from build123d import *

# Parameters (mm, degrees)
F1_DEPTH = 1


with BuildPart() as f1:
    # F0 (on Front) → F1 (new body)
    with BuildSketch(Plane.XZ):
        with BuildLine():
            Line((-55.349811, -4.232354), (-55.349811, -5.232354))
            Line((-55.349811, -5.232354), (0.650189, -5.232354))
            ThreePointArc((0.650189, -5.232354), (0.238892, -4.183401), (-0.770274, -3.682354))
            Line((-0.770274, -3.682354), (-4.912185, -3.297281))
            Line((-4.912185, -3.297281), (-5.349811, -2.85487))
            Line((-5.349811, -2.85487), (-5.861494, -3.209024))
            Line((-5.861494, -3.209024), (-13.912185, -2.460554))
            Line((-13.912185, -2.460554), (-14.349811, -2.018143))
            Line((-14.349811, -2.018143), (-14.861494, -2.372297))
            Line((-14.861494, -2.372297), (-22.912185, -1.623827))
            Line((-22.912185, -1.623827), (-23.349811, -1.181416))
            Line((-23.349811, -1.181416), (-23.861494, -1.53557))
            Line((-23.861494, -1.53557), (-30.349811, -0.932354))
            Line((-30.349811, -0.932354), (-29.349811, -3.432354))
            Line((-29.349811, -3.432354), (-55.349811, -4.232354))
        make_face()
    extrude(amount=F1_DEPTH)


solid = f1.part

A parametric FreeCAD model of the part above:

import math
import FreeCAD as App
import Part
import Sketcher
from FreeCAD import Vector

doc = App.newDocument("Part")
params = doc.addObject("Spreadsheet::Sheet", "Params")
for row, (alias, value) in enumerate([
    ("sketch1_width", "56 mm"),
    ("sketch1_height", "1 mm"),
    ("pad1_length", "1 mm"),
], start=1):
    params.set(f"A{row}", alias)
    params.set(f"B{row}", "=" + value)
    params.setAlias(f"B{row}", alias)

body = doc.addObject("PartDesign::Body", "Body")

sketch1 = doc.addObject("Sketcher::SketchObject", "Sketch")
body.addObject(sketch1)
sketch1.AttachmentSupport = (doc.XZ_Plane, [""])
sketch1.MapMode = "FlatFace"
sketch1.addGeometry(Part.LineSegment(Vector(-55.349811, -4.232354, 0), Vector(-55.349811, -5.232354, 0)), False)
sketch1.addGeometry(Part.LineSegment(Vector(-55.349811, -5.232354, 0), Vector(0.650189, -5.232354, 0)), False)
sketch1.addGeometry(Part.ArcOfCircle(Part.Circle(Vector(-0.915183, -5.241028, 0), Vector(0, 0, 1), 1.565396), math.radians(0.317493), math.radians(84.688522)), False)
sketch1.addGeometry(Part.LineSegment(Vector(-0.770274, -3.682354, 0), Vector(-4.912185, -3.297281, 0)), False)
sketch1.addGeometry(Part.LineSegment(Vector(-4.912185, -3.297281, 0), Vector(-5.349811, -2.85487, 0)), False)
sketch1.addGeometry(Part.LineSegment(Vector(-5.349811, -2.85487, 0), Vector(-5.861494, -3.209024, 0)), False)
sketch1.addGeometry(Part.LineSegment(Vector(-5.861494, -3.209024, 0), Vector(-13.912185, -2.460554, 0)), False)
sketch1.addGeometry(Part.LineSegment(Vector(-13.912185, -2.460554, 0), Vector(-14.349811, -2.018143, 0)), False)
sketch1.addGeometry(Part.LineSegment(Vector(-14.349811, -2.018143, 0), Vector(-14.861494, -2.372297, 0)), False)
sketch1.addGeometry(Part.LineSegment(Vector(-14.861494, -2.372297, 0), Vector(-22.912185, -1.623827, 0)), False)
sketch1.addGeometry(Part.LineSegment(Vector(-22.912185, -1.623827, 0), Vector(-23.349811, -1.181416, 0)), False)
sketch1.addGeometry(Part.LineSegment(Vector(-23.349811, -1.181416, 0), Vector(-23.861494, -1.53557, 0)), False)
sketch1.addGeometry(Part.LineSegment(Vector(-23.861494, -1.53557, 0), Vector(-30.349811, -0.932354, 0)), False)
sketch1.addGeometry(Part.LineSegment(Vector(-30.349811, -0.932354, 0), Vector(-29.349811, -3.432354, 0)), False)
sketch1.addGeometry(Part.LineSegment(Vector(-29.349811, -3.432354, 0), Vector(-55.349811, -4.232354, 0)), False)
sketch1.addConstraint(Sketcher.Constraint("Coincident", 0, 2, 1, 1))
sketch1.addConstraint(Sketcher.Constraint("Coincident", 1, 2, 2, 1))
sketch1.addConstraint(Sketcher.Constraint("Tangent", 2, 2, 3, 1))
sketch1.addConstraint(Sketcher.Constraint("Coincident", 3, 2, 4, 1))
sketch1.addConstraint(Sketcher.Constraint("Coincident", 4, 2, 5, 1))
sketch1.addConstraint(Sketcher.Constraint("Coincident", 5, 2, 6, 1))
sketch1.addConstraint(Sketcher.Constraint("Coincident", 6, 2, 7, 1))
sketch1.addConstraint(Sketcher.Constraint("Coincident", 7, 2, 8, 1))
sketch1.addConstraint(Sketcher.Constraint("Coincident", 8, 2, 9, 1))
sketch1.addConstraint(Sketcher.Constraint("Coincident", 9, 2, 10, 1))
sketch1.addConstraint(Sketcher.Constraint("Coincident", 10, 2, 11, 1))
sketch1.addConstraint(Sketcher.Constraint("Coincident", 11, 2, 12, 1))
sketch1.addConstraint(Sketcher.Constraint("Coincident", 12, 2, 13, 1))
sketch1.addConstraint(Sketcher.Constraint("Coincident", 13, 2, 14, 1))
sketch1.addConstraint(Sketcher.Constraint("Coincident", 14, 2, 0, 1))
sketch1.addConstraint(Sketcher.Constraint("Vertical", 0))
sketch1.addConstraint(Sketcher.Constraint("Horizontal", 1))
sketch1.addConstraint(Sketcher.Constraint("Parallel", 3, 6))
sketch1.addConstraint(Sketcher.Constraint("Parallel", 4, 7))
sketch1.addConstraint(Sketcher.Constraint("Parallel", 5, 8))
sketch1.addConstraint(Sketcher.Constraint("Parallel", 6, 9))
sketch1.addConstraint(Sketcher.Constraint("Parallel", 7, 10))
sketch1.addConstraint(Sketcher.Constraint("Parallel", 8, 11))
sketch1.addConstraint(Sketcher.Constraint("Parallel", 9, 12))
sketch1.addConstraint(Sketcher.Constraint("Equal", 4, 5))
sketch1.addConstraint(Sketcher.Constraint("Equal", 5, 7))
sketch1.addConstraint(Sketcher.Constraint("Equal", 7, 8))
sketch1.addConstraint(Sketcher.Constraint("Equal", 6, 9))
sketch1.addConstraint(Sketcher.Constraint("Equal", 8, 10))
sketch1.addConstraint(Sketcher.Constraint("Equal", 10, 11))
sketch1.addConstraint(Sketcher.Constraint("DistanceX", 1, 1, 1, 2, 56.0))
sketch1.addConstraint(Sketcher.Constraint("DistanceY", 0, 2, 0, 1, 1.0))
sketch1.addConstraint(Sketcher.Constraint("DistanceX", 4, 2, 1, 2, 6.0))
sketch1.addConstraint(Sketcher.Constraint("DistanceX", 6, 2, 3, 2, 9.0))
sketch1.addConstraint(Sketcher.Constraint("DistanceX", 12, 2, 10, 2, 7.0))
sketch1.addConstraint(Sketcher.Constraint("DistanceX", 12, 2, 13, 2, 1.0))
sketch1.addConstraint(Sketcher.Constraint("DistanceY", 13, 2, 12, 2, 2.5))
sketch1.addConstraint(Sketcher.Constraint("DistanceY", 14, 2, 12, 2, 3.3))
sketch1.addConstraint(Sketcher.Constraint("DistanceY", 1, 2, 2, 2, 1.55))
sketch1.addConstraint(Sketcher.Constraint("Radius", 2, 1.565396))
sketch1.addConstraint(Sketcher.Constraint("DistanceY", 2, 2, 6, 2, 1.2218))
sketch1.addConstraint(Sketcher.Constraint("Distance", 4, 0.622289))
sketch1.addConstraint(Sketcher.Constraint("Distance", 6, 8.085409))
sketch1.addConstraint(Sketcher.Constraint("DistanceY", 2, 3, -1, 1, 5.241028))
sketch1.addConstraint(Sketcher.Constraint("DistanceX", 0, 2, -1, 1, 55.349811))
sketch1.setExpression("Constraints[30]", "Params.sketch1_width")
sketch1.setExpression("Constraints[31]", "Params.sketch1_height")
pad1 = doc.addObject("PartDesign::Pad", "Pad")
body.addObject(pad1)
pad1.Profile = sketch1
pad1.setExpression("Length", "Params.pad1_length")

doc.recompute()
